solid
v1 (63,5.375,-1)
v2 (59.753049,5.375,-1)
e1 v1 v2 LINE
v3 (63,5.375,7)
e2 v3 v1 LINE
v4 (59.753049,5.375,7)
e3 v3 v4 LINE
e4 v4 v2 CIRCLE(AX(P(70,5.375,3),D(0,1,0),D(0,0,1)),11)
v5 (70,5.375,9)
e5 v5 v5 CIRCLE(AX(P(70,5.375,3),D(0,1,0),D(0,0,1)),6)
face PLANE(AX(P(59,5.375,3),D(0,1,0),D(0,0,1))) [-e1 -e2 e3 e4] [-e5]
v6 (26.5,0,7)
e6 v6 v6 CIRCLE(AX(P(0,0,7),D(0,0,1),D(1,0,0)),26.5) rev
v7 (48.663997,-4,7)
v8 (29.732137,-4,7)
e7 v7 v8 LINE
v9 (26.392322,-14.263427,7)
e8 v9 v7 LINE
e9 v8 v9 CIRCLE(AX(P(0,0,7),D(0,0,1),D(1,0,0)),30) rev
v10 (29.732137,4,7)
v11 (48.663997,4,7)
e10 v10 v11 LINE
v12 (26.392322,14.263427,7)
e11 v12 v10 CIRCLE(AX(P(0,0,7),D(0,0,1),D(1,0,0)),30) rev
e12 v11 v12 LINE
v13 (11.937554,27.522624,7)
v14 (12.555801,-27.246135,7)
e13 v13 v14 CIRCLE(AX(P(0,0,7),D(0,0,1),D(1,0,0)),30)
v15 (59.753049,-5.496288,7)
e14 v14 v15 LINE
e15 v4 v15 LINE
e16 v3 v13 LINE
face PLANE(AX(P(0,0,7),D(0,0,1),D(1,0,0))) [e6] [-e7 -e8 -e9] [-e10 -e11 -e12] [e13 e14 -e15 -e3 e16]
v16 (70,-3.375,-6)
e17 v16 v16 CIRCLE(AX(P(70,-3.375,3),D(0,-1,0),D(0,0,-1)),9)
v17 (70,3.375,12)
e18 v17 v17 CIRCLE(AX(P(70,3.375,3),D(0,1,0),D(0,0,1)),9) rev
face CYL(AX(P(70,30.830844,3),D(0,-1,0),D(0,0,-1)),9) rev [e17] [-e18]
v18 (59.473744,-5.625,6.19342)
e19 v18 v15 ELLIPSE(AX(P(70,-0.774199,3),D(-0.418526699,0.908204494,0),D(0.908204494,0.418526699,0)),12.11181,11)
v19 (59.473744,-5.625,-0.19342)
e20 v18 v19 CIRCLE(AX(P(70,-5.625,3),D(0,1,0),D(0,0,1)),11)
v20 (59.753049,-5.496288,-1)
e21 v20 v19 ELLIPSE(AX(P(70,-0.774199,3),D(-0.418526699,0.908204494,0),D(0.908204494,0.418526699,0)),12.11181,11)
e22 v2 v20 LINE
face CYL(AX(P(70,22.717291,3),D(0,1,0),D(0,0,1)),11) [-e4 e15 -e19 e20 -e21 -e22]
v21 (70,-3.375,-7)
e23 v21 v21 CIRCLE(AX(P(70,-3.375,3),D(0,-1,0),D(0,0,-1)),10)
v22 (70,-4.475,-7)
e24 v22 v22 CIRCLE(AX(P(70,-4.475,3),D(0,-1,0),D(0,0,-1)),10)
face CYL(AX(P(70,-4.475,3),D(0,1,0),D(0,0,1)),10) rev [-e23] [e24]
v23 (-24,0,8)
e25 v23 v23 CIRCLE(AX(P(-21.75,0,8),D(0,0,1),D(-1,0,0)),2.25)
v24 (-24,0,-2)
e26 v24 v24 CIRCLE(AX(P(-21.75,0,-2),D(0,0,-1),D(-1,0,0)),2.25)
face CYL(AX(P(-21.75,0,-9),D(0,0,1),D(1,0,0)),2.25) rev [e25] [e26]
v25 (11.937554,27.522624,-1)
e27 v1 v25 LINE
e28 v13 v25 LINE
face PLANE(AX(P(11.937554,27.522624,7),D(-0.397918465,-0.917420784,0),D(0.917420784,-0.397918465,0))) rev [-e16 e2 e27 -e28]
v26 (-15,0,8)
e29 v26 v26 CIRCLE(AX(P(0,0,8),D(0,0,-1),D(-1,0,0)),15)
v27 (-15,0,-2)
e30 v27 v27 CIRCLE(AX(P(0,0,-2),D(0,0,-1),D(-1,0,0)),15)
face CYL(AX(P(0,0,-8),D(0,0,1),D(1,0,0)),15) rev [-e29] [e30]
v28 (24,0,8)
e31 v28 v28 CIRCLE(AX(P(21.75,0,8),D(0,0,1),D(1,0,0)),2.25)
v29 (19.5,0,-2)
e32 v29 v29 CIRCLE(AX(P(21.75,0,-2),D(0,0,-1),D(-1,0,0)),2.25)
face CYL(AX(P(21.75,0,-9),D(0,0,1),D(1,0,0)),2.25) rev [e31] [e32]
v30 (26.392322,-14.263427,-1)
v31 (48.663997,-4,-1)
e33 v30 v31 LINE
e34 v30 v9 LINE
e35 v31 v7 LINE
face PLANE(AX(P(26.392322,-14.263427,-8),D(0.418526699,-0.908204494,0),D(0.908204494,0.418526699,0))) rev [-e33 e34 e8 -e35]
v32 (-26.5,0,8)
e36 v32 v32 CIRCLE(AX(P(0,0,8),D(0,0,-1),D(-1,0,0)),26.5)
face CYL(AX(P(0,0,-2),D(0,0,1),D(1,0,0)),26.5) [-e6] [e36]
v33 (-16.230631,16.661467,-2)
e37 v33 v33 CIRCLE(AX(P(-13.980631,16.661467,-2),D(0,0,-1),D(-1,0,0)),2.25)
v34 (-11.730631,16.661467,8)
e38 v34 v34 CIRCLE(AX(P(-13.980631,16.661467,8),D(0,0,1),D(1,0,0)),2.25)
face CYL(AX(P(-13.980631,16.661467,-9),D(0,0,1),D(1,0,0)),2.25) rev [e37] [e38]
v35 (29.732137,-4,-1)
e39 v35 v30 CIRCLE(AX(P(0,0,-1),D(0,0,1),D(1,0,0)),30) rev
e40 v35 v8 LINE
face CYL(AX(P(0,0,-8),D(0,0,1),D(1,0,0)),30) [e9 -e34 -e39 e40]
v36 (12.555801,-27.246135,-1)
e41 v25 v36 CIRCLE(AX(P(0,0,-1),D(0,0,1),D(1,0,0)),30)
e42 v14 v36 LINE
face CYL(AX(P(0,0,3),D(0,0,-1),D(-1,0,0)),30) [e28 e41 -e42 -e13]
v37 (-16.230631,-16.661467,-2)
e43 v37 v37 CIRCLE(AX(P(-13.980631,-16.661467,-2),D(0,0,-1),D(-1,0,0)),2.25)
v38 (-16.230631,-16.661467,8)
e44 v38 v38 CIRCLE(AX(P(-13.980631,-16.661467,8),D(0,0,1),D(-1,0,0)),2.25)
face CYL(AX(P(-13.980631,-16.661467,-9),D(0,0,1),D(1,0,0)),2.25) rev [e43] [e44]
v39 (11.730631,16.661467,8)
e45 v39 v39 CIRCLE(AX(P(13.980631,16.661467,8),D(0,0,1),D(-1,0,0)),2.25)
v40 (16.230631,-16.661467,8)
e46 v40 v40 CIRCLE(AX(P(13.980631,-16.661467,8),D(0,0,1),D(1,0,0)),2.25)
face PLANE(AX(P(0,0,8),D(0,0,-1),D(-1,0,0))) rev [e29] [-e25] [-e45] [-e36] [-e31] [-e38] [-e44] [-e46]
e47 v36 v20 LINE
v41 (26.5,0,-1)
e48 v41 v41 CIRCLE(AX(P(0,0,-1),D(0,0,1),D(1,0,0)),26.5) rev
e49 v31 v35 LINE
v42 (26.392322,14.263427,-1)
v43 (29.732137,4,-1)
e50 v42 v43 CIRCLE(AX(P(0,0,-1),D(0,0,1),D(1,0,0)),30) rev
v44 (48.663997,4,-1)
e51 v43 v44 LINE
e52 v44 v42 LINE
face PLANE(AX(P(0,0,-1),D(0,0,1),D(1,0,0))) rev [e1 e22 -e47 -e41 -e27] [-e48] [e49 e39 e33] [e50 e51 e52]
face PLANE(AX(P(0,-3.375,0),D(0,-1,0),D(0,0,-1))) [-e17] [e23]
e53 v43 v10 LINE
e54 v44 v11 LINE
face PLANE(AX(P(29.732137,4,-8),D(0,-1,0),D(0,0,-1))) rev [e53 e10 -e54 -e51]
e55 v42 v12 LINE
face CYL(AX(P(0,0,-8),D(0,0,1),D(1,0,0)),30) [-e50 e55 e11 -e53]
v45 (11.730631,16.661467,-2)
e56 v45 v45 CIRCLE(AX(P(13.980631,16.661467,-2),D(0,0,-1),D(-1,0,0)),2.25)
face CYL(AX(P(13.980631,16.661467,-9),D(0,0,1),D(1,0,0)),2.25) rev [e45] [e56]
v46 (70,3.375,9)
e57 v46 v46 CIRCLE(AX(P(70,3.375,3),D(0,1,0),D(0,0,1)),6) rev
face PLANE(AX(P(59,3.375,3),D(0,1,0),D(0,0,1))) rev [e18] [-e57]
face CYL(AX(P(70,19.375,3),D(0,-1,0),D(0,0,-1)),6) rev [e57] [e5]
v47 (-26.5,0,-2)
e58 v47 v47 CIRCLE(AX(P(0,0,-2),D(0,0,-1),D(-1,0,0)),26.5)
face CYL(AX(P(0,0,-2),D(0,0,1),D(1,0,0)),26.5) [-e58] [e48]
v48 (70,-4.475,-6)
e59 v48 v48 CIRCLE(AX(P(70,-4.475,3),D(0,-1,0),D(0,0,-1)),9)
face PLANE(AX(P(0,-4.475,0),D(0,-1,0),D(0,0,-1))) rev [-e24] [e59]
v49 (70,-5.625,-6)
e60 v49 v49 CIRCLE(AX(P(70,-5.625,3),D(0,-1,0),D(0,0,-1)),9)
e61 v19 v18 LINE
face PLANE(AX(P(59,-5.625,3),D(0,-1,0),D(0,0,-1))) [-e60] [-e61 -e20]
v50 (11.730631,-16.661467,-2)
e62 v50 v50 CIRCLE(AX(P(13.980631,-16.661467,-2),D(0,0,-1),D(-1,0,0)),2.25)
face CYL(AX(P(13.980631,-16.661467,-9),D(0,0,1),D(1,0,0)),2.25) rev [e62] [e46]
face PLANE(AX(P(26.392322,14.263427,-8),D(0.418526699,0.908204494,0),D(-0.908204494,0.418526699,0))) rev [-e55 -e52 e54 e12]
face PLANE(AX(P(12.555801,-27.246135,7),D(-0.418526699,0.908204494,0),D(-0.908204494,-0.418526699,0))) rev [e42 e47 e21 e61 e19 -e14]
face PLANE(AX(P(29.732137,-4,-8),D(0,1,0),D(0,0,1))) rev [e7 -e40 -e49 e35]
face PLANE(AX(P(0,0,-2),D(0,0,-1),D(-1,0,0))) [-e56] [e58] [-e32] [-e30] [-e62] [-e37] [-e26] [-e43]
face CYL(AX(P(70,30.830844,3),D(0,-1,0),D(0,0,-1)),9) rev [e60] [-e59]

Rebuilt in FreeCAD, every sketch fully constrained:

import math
import FreeCAD as App
import Part
import Sketcher
from FreeCAD import Vector

doc = App.newDocument("Part")
body = doc.addObject("PartDesign::Body", "Body")

# Sketch on XY plane
sketch1 = doc.addObject("Sketcher::SketchObject", "Sketch")
body.addObject(sketch1)
sketch1.AttachmentSupport = (doc.XY_Plane, [""])
sketch1.MapMode = "FlatFace"
sketch1.addGeometry(Part.Circle(Vector(0, 0, 0), Vector(0, 0, 1), 30), False)
sketch1.addConstraint(Sketcher.Constraint("Coincident", 0, 3, -1, 1))
sketch1.addConstraint(Sketcher.Constraint("Diameter", 0, 60.0))
pad1 = doc.addObject("PartDesign::Pad", "Pad")
body.addObject(pad1)
pad1.Profile = sketch1
pad1.Length = 3
body2 = doc.addObject("PartDesign::Body", "Body001")

# Sketch on XY plane
sketch2 = doc.addObject("Sketcher::SketchObject", "Sketch001")
body2.addObject(sketch2)
sketch2.AttachmentSupport = (doc.getObject("XY_Plane001"), [""])
sketch2.MapMode = "FlatFace"
sketch2.AttachmentOffset = App.Placement(Vector(0, 0, 3), App.Rotation())
sketch2.addGeometry(Part.LineSegment(Vector(59, 5.375, 0), Vector(59, -5.625, 0)), False)
sketch2.addGeometry(Part.LineSegment(Vector(59, -5.625, 0), Vector(70, -5.625, 0)), False)
sketch2.addGeometry(Part.LineSegment(Vector(70, -5.625, 0), Vector(70, 5.375, 0)), False)
sketch2.addGeometry(Part.LineSegment(Vector(70, 5.375, 0), Vector(59, 5.375, 0)), False)
sketch2.addGeometry(Part.LineSegment(Vector(70, 5.375, 0), Vector(70, -5.625, 0)), True)  # axis
sketch2.addConstraint(Sketcher.Constraint("Coincident", 0, 2, 1, 1))
sketch2.addConstraint(Sketcher.Constraint("Coincident", 1, 2, 2, 1))
sketch2.addConstraint(Sketcher.Constraint("Coincident", 2, 2, 3, 1))
sketch2.addConstraint(Sketcher.Constraint("Coincident", 3, 2, 0, 1))
sketch2.addConstraint(Sketcher.Constraint("Vertical", 0))
sketch2.addConstraint(Sketcher.Constraint("Horizontal", 1))
sketch2.addConstraint(Sketcher.Constraint("Vertical", 2))
sketch2.addConstraint(Sketcher.Constraint("Horizontal", 3))
sketch2.addConstraint(Sketcher.Constraint("Vertical", 4))
sketch2.addConstraint(Sketcher.Constraint("Coincident", 4, 1, 2, 2))
sketch2.addConstraint(Sketcher.Constraint("Horizontal", 0, 2, 4, 2))
sketch2.addConstraint(Sketcher.Constraint("Equal", 3, 0))
sketch2.addConstraint(Sketcher.Constraint("DistanceX", 1, 1, 1, 2, 11.0))
sketch2.addConstraint(Sketcher.Constraint("DistanceX", -1, 1, 0, 2, 59.0))
sketch2.addConstraint(Sketcher.Constraint("DistanceY", 0, 2, -1, 1, 5.625))
revolution = doc.addObject("PartDesign::Revolution", "Revolution")
body2.addObject(revolution)
revolution.Profile = sketch2
revolution.ReferenceAxis = (sketch2, ["Axis0"])
revolution.Angle = 360
body.AllowCompound = True
doc.recompute()

boolean = doc.addObject("PartDesign::Boolean", "Boolean")
body.addObject(boolean)
boolean.Type = "Fuse"
boolean.addObjects([body2])

# Sketch on XY plane
sketch3 = doc.addObject("Sketcher::SketchObject", "Sketch002")
body.addObject(sketch3)
sketch3.AttachmentSupport = (doc.XY_Plane, [""])
sketch3.MapMode = "FlatFace"
sketch3.AttachmentOffset = App.Placement(Vector(0, 0, 3), App.Rotation())
sketch3.addGeometry(Part.LineSegment(Vector(63, 5.375, 0), Vector(11.937554, 27.522624, 0)), False)
sketch3.addGeometry(Part.ArcOfCircle(Part.Circle(Vector(0, 0, 0), Vector(0, 0, 1), 30), math.radians(66.551884), math.radians(294.741607)), False)
sketch3.addGeometry(Part.LineSegment(Vector(12.555801, -27.246135, 0), Vector(63, -4, 0)), False)
sketch3.addGeometry(Part.LineSegment(Vector(63, -4, 0), Vector(63, 5.375, 0)), False)
sketch3.addConstraint(Sketcher.Constraint("Tangent", 0, 2, 1, 1))
sketch3.addConstraint(Sketcher.Constraint("Tangent", 1, 2, 2, 1))
sketch3.addConstraint(Sketcher.Constraint("Coincident", 2, 2, 3, 1))
sketch3.addConstraint(Sketcher.Constraint("Coincident", 3, 2, 0, 1))
sketch3.addConstraint(Sketcher.Constraint("Vertical", 3))
sketch3.addConstraint(Sketcher.Constraint("Coincident", 1, 3, -1, 1))
sketch3.addConstraint(Sketcher.Constraint("Radius", 1, 30.0))
sketch3.addConstraint(Sketcher.Constraint("DistanceX", -1, 1, 2, 2, 63.0))
sketch3.addConstraint(Sketcher.Constraint("DistanceY", 2, 2, -1, 1, 4.0))
sketch3.addConstraint(Sketcher.Constraint("DistanceY", 3, 1, 3, 2, 9.375))
pad2 = doc.addObject("PartDesign::Pad", "Pad001")
body.addObject(pad2)
pad2.Profile = sketch3
pad2.Length = 8
pad2.Midplane = True

# Sketch on XZ plane
sketch4 = doc.addObject("Sketcher::SketchObject", "Sketch003")
body.addObject(sketch4)
sketch4.AttachmentSupport = (doc.XZ_Plane, [""])
sketch4.MapMode = "FlatFace"
sketch4.AttachmentOffset = App.Placement(Vector(0, 0, 5.625), App.Rotation())
sketch4.addGeometry(Part.Circle(Vector(70, 3, 0), Vector(0, 0, 1), 6), False)
sketch4.addConstraint(Sketcher.Constraint("Diameter", 0, 12.0))
sketch4.addConstraint(Sketcher.Constraint("DistanceX", -1, 1, 0, 3, 70.0))
sketch4.addConstraint(Sketcher.Constraint("DistanceY", -1, 1, 0, 3, 3.0))
pocket1 = doc.addObject("PartDesign::Pocket", "Pocket")
body.addObject(pocket1)
pocket1.Profile = sketch4
pocket1.Length = 25

# Sketch on XZ plane
sketch5 = doc.addObject("Sketcher::SketchObject", "Sketch004")
body.addObject(sketch5)
sketch5.AttachmentSupport = (doc.XZ_Plane, [""])
sketch5.MapMode = "FlatFace"
sketch5.AttachmentOffset = App.Placement(Vector(0, 0, 5.625), App.Rotation())
sketch5.addGeometry(Part.Circle(Vector(70, 3, 0), Vector(0, 0, 1), 9), False)
sketch5.addConstraint(Sketcher.Constraint("Diameter", 0, 18.0))
sketch5.addConstraint(Sketcher.Constraint("DistanceX", -1, 1, 0, 3, 70.0))
sketch5.addConstraint(Sketcher.Constraint("DistanceY", -1, 1, 0, 3, 3.0))
pocket2 = doc.addObject("PartDesign::Pocket", "Pocket001")
body.addObject(pocket2)
pocket2.Profile = sketch5
pocket2.Length = 9

# Sketch on XZ plane
sketch6 = doc.addObject("Sketcher::SketchObject", "Sketch005")
body.addObject(sketch6)
sketch6.AttachmentSupport = (doc.XZ_Plane, [""])
sketch6.MapMode = "FlatFace"
sketch6.AttachmentOffset = App.Placement(Vector(0, 0, 4.475), App.Rotation())
sketch6.addGeometry(Part.Circle(Vector(70, 3, 0), Vector(0, 0, 1), 10), False)
sketch6.addConstraint(Sketcher.Constraint("Diameter", 0, 20.0))
sketch6.addConstraint(Sketcher.Constraint("DistanceX", -1, 1, 0, 3, 70.0))
sketch6.addConstraint(Sketcher.Constraint("DistanceY", -1, 1, 0, 3, 3.0))
pocket3 = doc.addObject("PartDesign::Pocket", "Pocket002")
body.addObject(pocket3)
pocket3.Profile = sketch6
pocket3.Length = 1.1

# Sketch on XY plane
sketch7 = doc.addObject("Sketcher::SketchObject", "Sketch006")
body.addObject(sketch7)
sketch7.AttachmentSupport = (doc.XY_Plane, [""])
sketch7.MapMode = "FlatFace"
sketch7.AttachmentOffset = App.Placement(Vector(0, 0, 3), App.Rotation())
sketch7.addGeometry(Part.Circle(Vector(0, 0, 0), Vector(0, 0, 1), 26.5), False)
sketch7.addConstraint(Sketcher.Constraint("Coincident", 0, 3, -1, 1))
sketch7.addConstraint(Sketcher.Constraint("Diameter", 0, 53.0))
pad3 = doc.addObject("PartDesign::Pad", "Pad002")
body.addObject(pad3)
pad3.Profile = sketch7
pad3.Length = 10
pad3.Midplane = True

# Sketch on XY plane
sketch8 = doc.addObject("Sketcher::SketchObject", "Sketch007")
body.addObject(sketch8)
sketch8.AttachmentSupport = (doc.XY_Plane, [""])
sketch8.MapMode = "FlatFace"
sketch8.AttachmentOffset = App.Placement(Vector(0, 0, 7), App.Rotation())
sketch8.addGeometry(Part.Circle(Vector(0, 0, 0), Vector(0, 0, 1), 15), False)
sketch8.addGeometry(Part.LineSegment(Vector(26.392322, -14.263427, 0), Vector(48.663997, -4, 0)), False)
sketch8.addGeometry(Part.LineSegment(Vector(48.663997, -4, 0), Vector(29.732137, -4, 0)), False)
sketch8.addGeometry(Part.ArcOfCircle(Part.Circle(Vector(0, 0, 0), Vector(0, 0, 1), 30), math.radians(-28.388496), math.radians(-7.662256)), False)
sketch8.addGeometry(Part.LineSegment(Vector(29.732137, 4, 0), Vector(48.663997, 4, 0)), False)
sketch8.addGeometry(Part.LineSegment(Vector(48.663997, 4, 0), Vector(26.392322, 14.263427, 0)), False)
sketch8.addGeometry(Part.ArcOfCircle(Part.Circle(Vector(0, 0, 0), Vector(0, 0, 1), 30), math.radians(7.662256), math.radians(28.388496)), False)
sketch8.addConstraint(Sketcher.Constraint("Coincident", 1, 2, 2, 1))
sketch8.addConstraint(Sketcher.Constraint("Coincident", 2, 2, 3, 2))
sketch8.addConstraint(Sketcher.Constraint("Coincident", 3, 1, 1, 1))
sketch8.addConstraint(Sketcher.Constraint("Coincident", 4, 2, 5, 1))
sketch8.addConstraint(Sketcher.Constraint("Coincident", 5, 2, 6, 2))
sketch8.addConstraint(Sketcher.Constraint("Coincident", 6, 1, 4, 1))
sketch8.addConstraint(Sketcher.Constraint("Horizontal", 2))
sketch8.addConstraint(Sketcher.Constraint("Horizontal", 4))
sketch8.addConstraint(Sketcher.Constraint("Coincident", 0, 3, -1, 1))
sketch8.addConstraint(Sketcher.Constraint("Coincident", 3, 3, -1, 1))
sketch8.addConstraint(Sketcher.Constraint("Coincident", 6, 3, -1, 1))
sketch8.addConstraint(Sketcher.Constraint("Equal", 3, 6))
sketch8.addConstraint(Sketcher.Constraint("Symmetric", 1, 2, 4, 2, -1))
sketch8.addConstraint(Sketcher.Constraint("Vertical", 3, 1, 5, 2))
sketch8.addConstraint(Sketcher.Constraint("Diameter", 0, 30.0))
sketch8.addConstraint(Sketcher.Constraint("Radius", 3, 30.0))
sketch8.addConstraint(Sketcher.Constraint("DistanceY", 1, 2, -1, 1, 4.0))
sketch8.addConstraint(Sketcher.Constraint("DistanceX", 2, 2, 2, 1, 18.93186))
sketch8.addConstraint(Sketcher.Constraint("DistanceX", -1, 1, 3, 1, 26.392322))
pocket4 = doc.addObject("PartDesign::Pocket", "Pocket003")
body.addObject(pocket4)
pocket4.Profile = sketch8
pocket4.Type = "ThroughAll"
pocket4.Midplane = True

# Sketch on XY plane
sketch9 = doc.addObject("Sketcher::SketchObject", "Sketch008")
body.addObject(sketch9)
sketch9.AttachmentSupport = (doc.XY_Plane, [""])
sketch9.MapMode = "FlatFace"
sketch9.AttachmentOffset = App.Placement(Vector(0, 0, 8), App.Rotation())
sketch9.addGeometry(Part.Circle(Vector(21.75, 0, 0), Vector(0, 0, 1), 2.25), False)
sketch9.addGeometry(Part.Circle(Vector(13.980631, -16.661467, 0), Vector(0, 0, 1), 2.25), False)
sketch9.addGeometry(Part.Circle(Vector(-21.75, 0, 0), Vector(0, 0, 1), 2.25), False)
sketch9.addGeometry(Part.Circle(Vector(-13.980631, -16.661467, 0), Vector(0, 0, 1), 2.25), False)
sketch9.addGeometry(Part.Circle(Vector(13.980631, 16.661467, 0), Vector(0, 0, 1), 2.25), False)
sketch9.addGeometry(Part.Circle(Vector(-13.980631, 16.661467, 0), Vector(0, 0, 1), 2.25), False)
sketch9.addConstraint(Sketcher.Constraint("Equal", 0, 1))
sketch9.addConstraint(Sketcher.Constraint("Equal", 1, 2))
sketch9.addConstraint(Sketcher.Constraint("Equal", 2, 3))
sketch9.addConstraint(Sketcher.Constraint("Equal", 3, 4))
sketch9.addConstraint(Sketcher.Constraint("Equal", 4, 5))
sketch9.addConstraint(Sketcher.Constraint("Symmetric", 0, 3, 2, 3, -1, 1))
sketch9.addConstraint(Sketcher.Constraint("Symmetric", 3, 3, 4, 3, -1, 1))
sketch9.addConstraint(Sketcher.Constraint("Symmetric", 1, 3, 5, 3, -1, 1))
sketch9.addConstraint(Sketcher.Constraint("Symmetric", 1, 3, 3, 3, -2))
sketch9.addConstraint(Sketcher.Constraint("PointOnObject", 0, 3, -1))
sketch9.addConstraint(Sketcher.Constraint("Diameter", 0, 4.5))
sketch9.addConstraint(Sketcher.Constraint("DistanceX", 2, 3, 0, 3, 43.5))
sketch9.addConstraint(Sketcher.Constraint("DistanceX", -1, 1, 1, 3, 13.980631))
sketch9.addConstraint(Sketcher.Constraint("DistanceY", 1, 3, -1, 1, 16.661467))
pocket5 = doc.addObject("PartDesign::Pocket", "Pocket004")
body.addObject(pocket5)
pocket5.Profile = sketch9
pocket5.Length = 17

doc.recompute()
